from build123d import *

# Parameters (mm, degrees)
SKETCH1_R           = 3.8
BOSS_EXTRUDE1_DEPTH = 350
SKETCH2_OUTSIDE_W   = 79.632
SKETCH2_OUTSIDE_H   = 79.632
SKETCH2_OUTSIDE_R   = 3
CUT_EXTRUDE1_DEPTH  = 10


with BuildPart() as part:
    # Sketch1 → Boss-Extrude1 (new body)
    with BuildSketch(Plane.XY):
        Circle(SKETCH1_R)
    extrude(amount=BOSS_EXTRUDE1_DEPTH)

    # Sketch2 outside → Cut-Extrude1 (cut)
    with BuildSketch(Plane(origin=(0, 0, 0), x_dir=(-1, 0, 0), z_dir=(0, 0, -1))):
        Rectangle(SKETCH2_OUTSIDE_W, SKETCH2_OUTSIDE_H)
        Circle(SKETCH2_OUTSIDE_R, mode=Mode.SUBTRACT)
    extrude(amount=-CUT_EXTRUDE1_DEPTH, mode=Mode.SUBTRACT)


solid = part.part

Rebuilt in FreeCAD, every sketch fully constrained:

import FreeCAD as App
import Part
import Sketcher

V = App.Vector

doc = App.newDocument("Part")
body = doc.addObject("PartDesign::Body", "Body")

# Sketch on XY plane
sketch1 = body.newObject("Sketcher::SketchObject", "Sketch")
sketch1.AttachmentSupport = (doc.getObject("XY_Plane"), [""])
sketch1.MapMode = "FlatFace"
sketch1.addGeometry(Part.Circle(V(0, 0, 0), V(0, 0, 1), 3.8), False)
sketch1.addConstraint(Sketcher.Constraint("Coincident", 0, 3, -1, 1))
sketch1.addConstraint(Sketcher.Constraint("Diameter", 0, 7.6))
pad1 = body.newObject("PartDesign::Pad", "Pad")
pad1.Profile = sketch1
pad1.Length = 350

# Sketch on XY plane
sketch2 = body.newObject("Sketcher::SketchObject", "Sketch001")
sketch2.AttachmentSupport = (doc.getObject("XY_Plane"), [""])
sketch2.MapMode = "FlatFace"
sketch2.addGeometry(Part.LineSegment(V(39.8, 39.8, 0), V(39.8, -39.8, 0)), False)
sketch2.addGeometry(Part.LineSegment(V(39.8, -39.8, 0), V(-39.8, -39.8, 0)), False)
sketch2.addGeometry(Part.LineSegment(V(-39.8, -39.8, 0), V(-39.8, 39.8, 0)), False)
sketch2.addGeometry(Part.LineSegment(V(-39.8, 39.8, 0), V(39.8, 39.8, 0)), False)
sketch2.addGeometry(Part.Circle(V(0, 0, 0), V(0, 0, 1), 3), False)
sketch2.addConstraint(Sketcher.Constraint("Coincident", 0, 2, 1, 1))
sketch2.addConstraint(Sketcher.Constraint("Coincident", 1, 2, 2, 1))
sketch2.addConstraint(Sketcher.Constraint("Coincident", 2, 2, 3, 1))
sketch2.addConstraint(Sketcher.Constraint("Coincident", 3, 2, 0, 1))
sketch2.addConstraint(Sketcher.Constraint("Vertical", 0))
sketch2.addConstraint(Sketcher.Constraint("Horizontal", 1))
sketch2.addConstraint(Sketcher.Constraint("Vertical", 2))
sketch2.addConstraint(Sketcher.Constraint("Horizontal", 3))
sketch2.addConstraint(Sketcher.Constraint("Coincident", 4, 3, -1, 1))
sketch2.addConstraint(Sketcher.Constraint("Symmetric", 0, 2, 2, 2, -1, 1))
sketch2.addConstraint(Sketcher.Constraint("Equal", 3, 0))
sketch2.addConstraint(Sketcher.Constraint("Diameter", 4, 6.0))
sketch2.addConstraint(Sketcher.Constraint("DistanceX", 1, 2, 1, 1, 79.632))
pocket1 = body.newObject("PartDesign::Pocket", "Pocket")
pocket1.Profile = sketch2
pocket1.Length = 10
pocket1.Reversed = True

doc.recompute()
